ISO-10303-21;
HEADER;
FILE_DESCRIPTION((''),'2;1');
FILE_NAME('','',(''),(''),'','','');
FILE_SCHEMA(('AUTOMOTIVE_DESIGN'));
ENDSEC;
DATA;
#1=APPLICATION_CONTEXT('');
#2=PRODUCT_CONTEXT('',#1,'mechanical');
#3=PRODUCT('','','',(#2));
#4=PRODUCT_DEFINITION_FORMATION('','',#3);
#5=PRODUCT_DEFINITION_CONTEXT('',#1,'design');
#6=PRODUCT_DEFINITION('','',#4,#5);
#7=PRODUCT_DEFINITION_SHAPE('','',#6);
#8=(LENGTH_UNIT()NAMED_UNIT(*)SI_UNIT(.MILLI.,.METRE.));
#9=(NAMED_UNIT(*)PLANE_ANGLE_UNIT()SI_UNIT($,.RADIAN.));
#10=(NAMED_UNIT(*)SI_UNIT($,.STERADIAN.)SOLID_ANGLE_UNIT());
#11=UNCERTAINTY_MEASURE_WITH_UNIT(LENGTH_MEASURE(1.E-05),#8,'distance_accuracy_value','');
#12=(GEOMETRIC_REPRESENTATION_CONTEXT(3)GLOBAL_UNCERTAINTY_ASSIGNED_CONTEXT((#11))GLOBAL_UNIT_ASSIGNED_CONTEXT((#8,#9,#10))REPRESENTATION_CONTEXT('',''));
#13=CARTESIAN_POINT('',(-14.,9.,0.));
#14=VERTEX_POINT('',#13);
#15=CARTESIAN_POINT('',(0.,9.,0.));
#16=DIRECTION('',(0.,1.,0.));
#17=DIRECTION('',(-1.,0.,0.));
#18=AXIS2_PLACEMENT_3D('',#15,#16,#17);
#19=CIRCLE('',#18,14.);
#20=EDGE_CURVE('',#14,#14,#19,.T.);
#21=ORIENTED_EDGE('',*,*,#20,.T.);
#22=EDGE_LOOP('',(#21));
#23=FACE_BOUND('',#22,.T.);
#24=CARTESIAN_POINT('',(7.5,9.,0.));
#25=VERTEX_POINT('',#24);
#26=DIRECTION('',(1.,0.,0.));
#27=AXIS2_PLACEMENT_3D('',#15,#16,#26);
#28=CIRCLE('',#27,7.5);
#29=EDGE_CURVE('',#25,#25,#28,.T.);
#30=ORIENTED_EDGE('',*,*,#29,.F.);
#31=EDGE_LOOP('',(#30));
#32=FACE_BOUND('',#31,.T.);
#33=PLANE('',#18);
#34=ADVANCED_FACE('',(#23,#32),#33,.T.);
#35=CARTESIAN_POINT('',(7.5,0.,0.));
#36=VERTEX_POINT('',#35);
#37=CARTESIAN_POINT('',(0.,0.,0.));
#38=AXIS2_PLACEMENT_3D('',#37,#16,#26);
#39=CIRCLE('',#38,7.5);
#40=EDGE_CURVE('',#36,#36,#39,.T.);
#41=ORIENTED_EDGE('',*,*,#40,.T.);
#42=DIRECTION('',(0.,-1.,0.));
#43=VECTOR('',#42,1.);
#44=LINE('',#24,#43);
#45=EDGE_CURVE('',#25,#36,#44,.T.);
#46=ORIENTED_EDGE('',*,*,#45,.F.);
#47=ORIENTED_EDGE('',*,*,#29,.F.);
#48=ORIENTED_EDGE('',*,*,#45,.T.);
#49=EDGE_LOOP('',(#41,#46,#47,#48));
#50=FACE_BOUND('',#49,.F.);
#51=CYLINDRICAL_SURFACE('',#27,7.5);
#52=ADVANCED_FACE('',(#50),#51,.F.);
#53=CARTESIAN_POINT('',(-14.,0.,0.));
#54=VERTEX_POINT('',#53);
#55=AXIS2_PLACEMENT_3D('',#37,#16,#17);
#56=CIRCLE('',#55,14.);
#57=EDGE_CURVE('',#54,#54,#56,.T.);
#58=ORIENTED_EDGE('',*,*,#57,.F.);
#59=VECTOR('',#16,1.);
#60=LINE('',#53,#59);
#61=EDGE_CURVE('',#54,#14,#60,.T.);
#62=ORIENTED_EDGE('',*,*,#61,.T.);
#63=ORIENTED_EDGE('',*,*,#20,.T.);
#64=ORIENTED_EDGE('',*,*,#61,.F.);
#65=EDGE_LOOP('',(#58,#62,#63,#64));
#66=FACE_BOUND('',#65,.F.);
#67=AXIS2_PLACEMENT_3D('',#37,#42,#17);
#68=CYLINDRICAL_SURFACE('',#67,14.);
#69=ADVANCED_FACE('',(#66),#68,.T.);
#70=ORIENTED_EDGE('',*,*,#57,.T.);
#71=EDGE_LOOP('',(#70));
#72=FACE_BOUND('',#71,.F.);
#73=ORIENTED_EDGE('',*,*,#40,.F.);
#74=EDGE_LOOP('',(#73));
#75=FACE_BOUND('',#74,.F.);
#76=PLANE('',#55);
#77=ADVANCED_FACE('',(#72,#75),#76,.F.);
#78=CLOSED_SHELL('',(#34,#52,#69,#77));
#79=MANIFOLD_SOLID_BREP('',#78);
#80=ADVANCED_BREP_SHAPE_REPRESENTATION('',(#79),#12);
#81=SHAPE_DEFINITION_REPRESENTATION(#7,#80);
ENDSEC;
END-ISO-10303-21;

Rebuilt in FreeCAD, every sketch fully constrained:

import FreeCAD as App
import Part
import Sketcher

V = App.Vector
Q = App.Units.Quantity

doc = App.newDocument("Part")
body = doc.addObject("PartDesign::Body", "Body")

sketch1 = body.newObject("Sketcher::SketchObject", "Sketch")
sketch1.AttachmentSupport = (doc.getObject("XZ_Plane"), [""])
sketch1.MapMode = "FlatFace"
sketch1.addGeometry(Part.Circle(V(0, 0, 0), V(0, 0, 1), 14), False)
sketch1.addConstraint([
    Sketcher.Constraint("Coincident", 0, 3, -1, 1),
    Sketcher.Constraint("Diameter", 0, Q("28 mm")),
])
pad1 = body.newObject("PartDesign::Pad", "Pad")
pad1.Profile = sketch1
pad1.Length = 9
pad1.Reversed = True

sketch2 = body.newObject("Sketcher::SketchObject", "Sketch001")
sketch2.AttachmentSupport = (doc.getObject("XZ_Plane"), [""])
sketch2.MapMode = "FlatFace"
sketch2.AttachmentOffset = App.Placement(V(0, 0, -9), App.Rotation())
sketch2.addGeometry(Part.Circle(V(0, 0, 0), V(0, 0, 1), 8), False)
sketch2.addConstraint([
    Sketcher.Constraint("Coincident", 0, 3, -1, 1),
    Sketcher.Constraint("Diameter", 0, Q("15 mm")),
])
pocket1 = body.newObject("PartDesign::Pocket", "Pocket")
pocket1.Profile = sketch2
pocket1.Length = 9
pocket1.Reversed = True

doc.recompute()
